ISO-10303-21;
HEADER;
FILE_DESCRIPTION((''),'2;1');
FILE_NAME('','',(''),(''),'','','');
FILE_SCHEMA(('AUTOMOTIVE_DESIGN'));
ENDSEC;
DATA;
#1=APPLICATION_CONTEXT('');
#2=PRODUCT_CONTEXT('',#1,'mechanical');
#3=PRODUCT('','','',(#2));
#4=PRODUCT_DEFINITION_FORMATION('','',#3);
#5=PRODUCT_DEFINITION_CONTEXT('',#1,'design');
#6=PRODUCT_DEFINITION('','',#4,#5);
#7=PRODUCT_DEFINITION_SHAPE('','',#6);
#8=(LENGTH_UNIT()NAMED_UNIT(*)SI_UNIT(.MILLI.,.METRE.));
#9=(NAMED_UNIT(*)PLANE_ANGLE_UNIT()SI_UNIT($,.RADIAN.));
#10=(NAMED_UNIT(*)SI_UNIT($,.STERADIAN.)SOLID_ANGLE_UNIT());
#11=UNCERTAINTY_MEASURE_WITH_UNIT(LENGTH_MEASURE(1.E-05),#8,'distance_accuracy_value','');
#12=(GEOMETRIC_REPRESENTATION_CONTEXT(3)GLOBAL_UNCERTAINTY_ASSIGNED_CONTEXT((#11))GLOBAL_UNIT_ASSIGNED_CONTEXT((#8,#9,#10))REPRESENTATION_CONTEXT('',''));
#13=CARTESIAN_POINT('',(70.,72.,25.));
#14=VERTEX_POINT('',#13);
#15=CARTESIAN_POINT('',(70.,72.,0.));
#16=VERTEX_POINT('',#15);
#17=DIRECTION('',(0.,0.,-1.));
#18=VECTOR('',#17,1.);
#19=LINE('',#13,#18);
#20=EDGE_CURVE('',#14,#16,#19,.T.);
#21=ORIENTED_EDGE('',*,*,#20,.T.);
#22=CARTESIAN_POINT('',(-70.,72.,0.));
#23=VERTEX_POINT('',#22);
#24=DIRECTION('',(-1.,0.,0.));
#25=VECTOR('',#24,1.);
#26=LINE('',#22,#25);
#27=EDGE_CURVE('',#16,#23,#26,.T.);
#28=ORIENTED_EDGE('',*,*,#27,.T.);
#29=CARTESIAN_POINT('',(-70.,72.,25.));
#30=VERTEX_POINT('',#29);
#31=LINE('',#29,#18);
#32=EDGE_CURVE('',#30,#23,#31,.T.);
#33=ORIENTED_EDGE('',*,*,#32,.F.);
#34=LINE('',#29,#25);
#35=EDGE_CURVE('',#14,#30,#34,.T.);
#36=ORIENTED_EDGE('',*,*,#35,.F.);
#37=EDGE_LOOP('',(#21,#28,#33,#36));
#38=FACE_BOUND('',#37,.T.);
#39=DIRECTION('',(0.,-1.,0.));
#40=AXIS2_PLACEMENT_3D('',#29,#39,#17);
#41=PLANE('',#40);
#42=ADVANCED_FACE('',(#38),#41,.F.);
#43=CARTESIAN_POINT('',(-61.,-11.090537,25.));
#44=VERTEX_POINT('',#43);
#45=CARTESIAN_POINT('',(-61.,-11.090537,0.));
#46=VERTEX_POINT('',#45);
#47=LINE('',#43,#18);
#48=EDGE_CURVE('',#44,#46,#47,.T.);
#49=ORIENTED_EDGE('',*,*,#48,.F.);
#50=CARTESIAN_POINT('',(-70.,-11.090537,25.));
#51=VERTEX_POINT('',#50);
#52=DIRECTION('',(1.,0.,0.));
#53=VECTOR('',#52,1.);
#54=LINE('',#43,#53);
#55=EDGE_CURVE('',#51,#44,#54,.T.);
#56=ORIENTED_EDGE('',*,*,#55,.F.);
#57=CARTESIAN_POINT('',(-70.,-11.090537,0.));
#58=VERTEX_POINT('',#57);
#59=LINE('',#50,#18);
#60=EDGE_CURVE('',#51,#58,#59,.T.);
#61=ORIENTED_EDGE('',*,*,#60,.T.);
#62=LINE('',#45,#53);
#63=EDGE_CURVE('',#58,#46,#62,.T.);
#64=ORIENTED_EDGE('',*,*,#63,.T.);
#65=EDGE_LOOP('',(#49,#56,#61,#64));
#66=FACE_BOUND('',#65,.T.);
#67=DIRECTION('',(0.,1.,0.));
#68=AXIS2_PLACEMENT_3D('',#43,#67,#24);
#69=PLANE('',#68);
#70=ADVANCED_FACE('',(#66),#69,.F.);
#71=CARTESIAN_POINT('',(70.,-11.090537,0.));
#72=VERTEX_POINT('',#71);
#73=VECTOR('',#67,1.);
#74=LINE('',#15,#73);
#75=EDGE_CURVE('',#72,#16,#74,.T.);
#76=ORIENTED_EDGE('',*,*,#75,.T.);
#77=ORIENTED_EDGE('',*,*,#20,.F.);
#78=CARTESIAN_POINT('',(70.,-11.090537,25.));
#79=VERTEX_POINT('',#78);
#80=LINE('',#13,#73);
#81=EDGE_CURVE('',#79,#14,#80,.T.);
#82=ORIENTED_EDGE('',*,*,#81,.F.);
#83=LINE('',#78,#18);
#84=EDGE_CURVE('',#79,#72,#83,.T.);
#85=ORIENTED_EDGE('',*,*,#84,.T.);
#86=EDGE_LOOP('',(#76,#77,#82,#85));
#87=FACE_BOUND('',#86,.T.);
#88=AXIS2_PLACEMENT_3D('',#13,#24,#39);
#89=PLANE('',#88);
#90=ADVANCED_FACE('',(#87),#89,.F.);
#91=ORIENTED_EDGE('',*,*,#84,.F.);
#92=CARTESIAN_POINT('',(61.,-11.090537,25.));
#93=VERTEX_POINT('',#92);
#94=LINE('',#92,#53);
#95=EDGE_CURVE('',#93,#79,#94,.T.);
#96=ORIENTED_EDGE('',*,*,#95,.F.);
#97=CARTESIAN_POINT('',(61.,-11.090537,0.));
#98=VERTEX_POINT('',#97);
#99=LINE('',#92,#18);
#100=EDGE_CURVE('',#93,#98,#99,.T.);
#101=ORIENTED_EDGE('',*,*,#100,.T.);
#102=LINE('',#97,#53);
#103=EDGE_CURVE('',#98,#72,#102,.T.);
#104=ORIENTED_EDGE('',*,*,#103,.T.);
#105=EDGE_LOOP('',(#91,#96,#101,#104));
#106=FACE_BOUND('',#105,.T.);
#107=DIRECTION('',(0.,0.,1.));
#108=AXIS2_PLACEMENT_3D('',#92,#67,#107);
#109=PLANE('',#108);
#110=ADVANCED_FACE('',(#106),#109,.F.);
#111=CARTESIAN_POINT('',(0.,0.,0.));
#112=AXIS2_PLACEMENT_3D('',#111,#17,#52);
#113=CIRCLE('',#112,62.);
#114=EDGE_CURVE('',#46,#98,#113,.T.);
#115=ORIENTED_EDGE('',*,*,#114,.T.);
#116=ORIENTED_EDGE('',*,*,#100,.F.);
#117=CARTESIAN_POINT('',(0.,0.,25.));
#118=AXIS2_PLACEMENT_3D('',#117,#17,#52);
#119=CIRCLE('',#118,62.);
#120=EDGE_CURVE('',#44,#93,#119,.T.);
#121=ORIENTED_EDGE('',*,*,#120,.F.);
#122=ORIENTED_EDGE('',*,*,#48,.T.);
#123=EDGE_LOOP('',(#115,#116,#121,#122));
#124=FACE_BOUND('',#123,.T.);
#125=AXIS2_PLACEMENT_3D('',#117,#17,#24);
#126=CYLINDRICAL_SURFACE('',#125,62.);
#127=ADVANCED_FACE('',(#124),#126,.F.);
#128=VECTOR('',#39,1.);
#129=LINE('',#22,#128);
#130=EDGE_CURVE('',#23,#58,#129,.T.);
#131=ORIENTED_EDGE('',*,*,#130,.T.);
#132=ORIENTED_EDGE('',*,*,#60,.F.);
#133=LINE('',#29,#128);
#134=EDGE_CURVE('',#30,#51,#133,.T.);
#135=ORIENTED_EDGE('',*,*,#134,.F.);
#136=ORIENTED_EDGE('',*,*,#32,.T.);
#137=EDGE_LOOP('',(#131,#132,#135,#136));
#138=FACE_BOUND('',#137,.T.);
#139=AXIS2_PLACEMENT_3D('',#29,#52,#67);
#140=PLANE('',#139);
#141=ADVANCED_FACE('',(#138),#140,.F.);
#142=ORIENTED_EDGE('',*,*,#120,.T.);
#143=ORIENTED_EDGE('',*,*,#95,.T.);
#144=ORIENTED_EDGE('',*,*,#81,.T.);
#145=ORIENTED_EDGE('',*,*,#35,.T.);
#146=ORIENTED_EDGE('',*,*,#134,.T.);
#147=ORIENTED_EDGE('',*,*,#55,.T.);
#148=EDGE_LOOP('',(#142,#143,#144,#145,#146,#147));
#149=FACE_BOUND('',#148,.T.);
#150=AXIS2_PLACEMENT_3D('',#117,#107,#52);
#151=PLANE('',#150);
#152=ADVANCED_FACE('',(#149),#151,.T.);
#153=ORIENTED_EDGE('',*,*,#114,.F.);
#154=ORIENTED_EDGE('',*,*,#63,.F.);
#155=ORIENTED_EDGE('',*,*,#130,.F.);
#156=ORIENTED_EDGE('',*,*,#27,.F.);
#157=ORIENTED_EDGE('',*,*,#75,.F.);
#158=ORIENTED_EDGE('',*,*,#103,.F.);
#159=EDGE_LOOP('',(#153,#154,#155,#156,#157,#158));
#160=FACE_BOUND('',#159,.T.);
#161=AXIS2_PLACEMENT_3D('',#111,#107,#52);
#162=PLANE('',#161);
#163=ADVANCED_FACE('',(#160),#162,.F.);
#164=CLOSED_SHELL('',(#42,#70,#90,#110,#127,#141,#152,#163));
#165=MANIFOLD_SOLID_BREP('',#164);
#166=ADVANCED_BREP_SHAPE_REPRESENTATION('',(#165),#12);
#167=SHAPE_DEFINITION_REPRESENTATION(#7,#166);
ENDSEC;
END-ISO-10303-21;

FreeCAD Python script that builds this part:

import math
import FreeCAD as App
import Part
import Sketcher

V = App.Vector

doc = App.newDocument("Part")
body = doc.addObject("PartDesign::Body", "Body")

# Sketch on XY plane
sketch1 = doc.addObject("Sketcher::SketchObject", "Sketch")
body.addObject(sketch1)
sketch1.AttachmentSupport = (doc.XY_Plane, [""])
sketch1.MapMode = "FlatFace"
sketch1.addGeometry([
    Part.LineSegment(V(-70, 72, 0), V(-70, -11, 0)),  # 0
    Part.LineSegment(V(-70, -11, 0), V(-61, -11, 0)),  # 1
    Part.ArcOfCircle(Part.Circle(V(0, 0, 0), V(0, 0, 1), 62), math.radians(-10), math.radians(190)),  # 2
    Part.LineSegment(V(61, -11, 0), V(70, -11, 0)),  # 3
    Part.LineSegment(V(70, -11, 0), V(70, 72, 0)),  # 4
    Part.LineSegment(V(70, 72, 0), V(-70, 72, 0)),  # 5
], False)
sketch1.addConstraint([
    Sketcher.Constraint("Coincident", 0, 2, 1, 1),
    Sketcher.Constraint("Coincident", 1, 2, 2, 2),
    Sketcher.Constraint("Coincident", 2, 1, 3, 1),
    Sketcher.Constraint("Coincident", 3, 2, 4, 1),
    Sketcher.Constraint("Coincident", 4, 2, 5, 1),
    Sketcher.Constraint("Coincident", 5, 2, 0, 1),
    Sketcher.Constraint("Vertical", 0),
    Sketcher.Constraint("Horizontal", 1),
    Sketcher.Constraint("Horizontal", 3),
    Sketcher.Constraint("Vertical", 4),
    Sketcher.Constraint("Horizontal", 5),
    Sketcher.Constraint("Coincident", 2, 3, -1, 1),
    Sketcher.Constraint("Symmetric", 0, 2, 3, 2, -2),
    Sketcher.Constraint("Radius", 2, 62.0),
    Sketcher.Constraint("DistanceX", 1, 1, 1, 2, 9.0),
    Sketcher.Constraint("DistanceX", 5, 2, 5, 1, 140.0),
    Sketcher.Constraint("DistanceY", -1, 1, 4, 2, 72.0),
])
pad1 = doc.addObject("PartDesign::Pad", "Pad")
body.addObject(pad1)
pad1.Profile = sketch1
pad1.Length = 25

doc.recompute()
